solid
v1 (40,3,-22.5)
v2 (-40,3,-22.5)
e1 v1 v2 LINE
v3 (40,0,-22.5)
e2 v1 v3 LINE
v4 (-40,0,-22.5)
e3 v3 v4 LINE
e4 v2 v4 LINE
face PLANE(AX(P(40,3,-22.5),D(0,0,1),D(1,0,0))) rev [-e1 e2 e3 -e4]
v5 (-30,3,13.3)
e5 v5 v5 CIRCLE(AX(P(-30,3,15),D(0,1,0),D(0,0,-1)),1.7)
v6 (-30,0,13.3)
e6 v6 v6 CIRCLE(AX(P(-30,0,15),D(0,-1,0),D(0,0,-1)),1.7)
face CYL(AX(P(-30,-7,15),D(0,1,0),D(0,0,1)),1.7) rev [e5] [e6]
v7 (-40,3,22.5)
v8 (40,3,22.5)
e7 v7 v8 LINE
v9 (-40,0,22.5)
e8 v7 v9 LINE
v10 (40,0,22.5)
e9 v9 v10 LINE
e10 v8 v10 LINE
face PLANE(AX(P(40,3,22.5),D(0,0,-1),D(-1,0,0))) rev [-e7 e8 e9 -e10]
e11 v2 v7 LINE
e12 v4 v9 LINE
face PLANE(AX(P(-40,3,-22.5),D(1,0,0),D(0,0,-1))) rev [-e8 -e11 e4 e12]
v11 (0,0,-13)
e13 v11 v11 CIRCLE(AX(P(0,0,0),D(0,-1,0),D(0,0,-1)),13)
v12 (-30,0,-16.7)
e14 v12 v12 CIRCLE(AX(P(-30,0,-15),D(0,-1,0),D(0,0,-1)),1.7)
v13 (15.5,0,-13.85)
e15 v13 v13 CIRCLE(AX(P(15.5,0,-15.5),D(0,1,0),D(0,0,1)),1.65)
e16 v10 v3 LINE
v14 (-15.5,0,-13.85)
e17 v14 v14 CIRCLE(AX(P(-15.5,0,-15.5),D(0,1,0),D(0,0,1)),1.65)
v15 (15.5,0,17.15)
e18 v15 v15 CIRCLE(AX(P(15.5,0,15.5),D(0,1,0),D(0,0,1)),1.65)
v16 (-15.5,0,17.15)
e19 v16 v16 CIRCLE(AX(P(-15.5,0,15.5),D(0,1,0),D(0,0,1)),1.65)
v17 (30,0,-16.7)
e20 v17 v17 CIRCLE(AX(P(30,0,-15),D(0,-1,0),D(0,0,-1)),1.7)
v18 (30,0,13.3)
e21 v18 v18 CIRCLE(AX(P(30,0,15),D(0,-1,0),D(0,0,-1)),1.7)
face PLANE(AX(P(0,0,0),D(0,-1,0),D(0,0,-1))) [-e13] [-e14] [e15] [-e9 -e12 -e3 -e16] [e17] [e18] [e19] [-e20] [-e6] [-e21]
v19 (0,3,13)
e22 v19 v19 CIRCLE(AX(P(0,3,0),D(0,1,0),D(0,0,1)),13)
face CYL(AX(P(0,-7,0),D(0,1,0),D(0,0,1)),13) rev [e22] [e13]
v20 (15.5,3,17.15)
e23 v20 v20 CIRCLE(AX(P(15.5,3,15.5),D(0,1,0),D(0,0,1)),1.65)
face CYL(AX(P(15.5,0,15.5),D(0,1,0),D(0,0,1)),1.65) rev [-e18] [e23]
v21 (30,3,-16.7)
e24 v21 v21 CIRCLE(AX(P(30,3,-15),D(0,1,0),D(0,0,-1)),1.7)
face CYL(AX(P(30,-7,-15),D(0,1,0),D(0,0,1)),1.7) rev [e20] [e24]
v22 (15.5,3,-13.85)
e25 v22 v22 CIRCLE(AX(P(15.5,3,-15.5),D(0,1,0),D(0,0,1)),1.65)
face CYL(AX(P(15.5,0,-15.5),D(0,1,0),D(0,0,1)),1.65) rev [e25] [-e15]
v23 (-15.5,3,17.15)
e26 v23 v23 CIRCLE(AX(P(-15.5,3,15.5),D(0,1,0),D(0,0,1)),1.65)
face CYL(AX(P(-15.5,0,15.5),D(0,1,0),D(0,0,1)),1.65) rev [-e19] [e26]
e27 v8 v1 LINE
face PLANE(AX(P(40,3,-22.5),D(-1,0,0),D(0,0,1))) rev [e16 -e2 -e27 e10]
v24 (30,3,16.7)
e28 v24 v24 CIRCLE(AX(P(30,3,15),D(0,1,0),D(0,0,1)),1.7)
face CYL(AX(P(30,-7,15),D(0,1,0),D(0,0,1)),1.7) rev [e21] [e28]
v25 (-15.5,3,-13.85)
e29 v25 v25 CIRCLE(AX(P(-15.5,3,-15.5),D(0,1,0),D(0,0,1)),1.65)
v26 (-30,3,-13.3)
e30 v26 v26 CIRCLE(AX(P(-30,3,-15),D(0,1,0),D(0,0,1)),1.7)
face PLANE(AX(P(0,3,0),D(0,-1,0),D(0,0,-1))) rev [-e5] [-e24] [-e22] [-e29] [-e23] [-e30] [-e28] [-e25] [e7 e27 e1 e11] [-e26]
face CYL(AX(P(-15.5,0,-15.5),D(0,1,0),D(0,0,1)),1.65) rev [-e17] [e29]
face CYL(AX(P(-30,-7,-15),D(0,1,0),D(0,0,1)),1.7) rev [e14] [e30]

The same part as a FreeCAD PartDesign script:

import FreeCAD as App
import Part
import Sketcher
from FreeCAD import Vector

doc = App.newDocument("Part")
params = doc.addObject("Spreadsheet::Sheet", "Params")
for row, (alias, value) in enumerate([
    ("sketch1_width", "80 mm"),
    ("sketch1_height", "45 mm"),
    ("pad1_length", "3 mm"),
    ("sketch2_diameter", "3.3 mm"),
    ("pocket1_length", "3 mm"),
    ("sketch3_diameter", "26 mm"),
    ("pocket2_length", "10 mm"),
    ("sketch4_diameter", "3.4 mm"),
    ("pocket3_length", "10 mm"),
], start=1):
    params.set(f"A{row}", alias)
    params.set(f"B{row}", "=" + value)
    params.setAlias(f"B{row}", alias)

body = doc.addObject("PartDesign::Body", "Body")

# Sketch on XZ plane
sketch1 = body.newObject("Sketcher::SketchObject", "Sketch")
sketch1.AttachmentSupport = (doc.getObject("XZ_Plane"), [""])
sketch1.MapMode = "FlatFace"
sketch1.addGeometry(Part.LineSegment(Vector(-40, -22.5, 0), Vector(-40, 22.5, 0)), False)
sketch1.addGeometry(Part.LineSegment(Vector(-40, 22.5, 0), Vector(40, 22.5, 0)), False)
sketch1.addGeometry(Part.LineSegment(Vector(40, 22.5, 0), Vector(40, -22.5, 0)), False)
sketch1.addGeometry(Part.LineSegment(Vector(40, -22.5, 0), Vector(-40, -22.5, 0)), False)
sketch1.addConstraint(Sketcher.Constraint("Coincident", 0, 2, 1, 1))
sketch1.addConstraint(Sketcher.Constraint("Coincident", 1, 2, 2, 1))
sketch1.addConstraint(Sketcher.Constraint("Coincident", 2, 2, 3, 1))
sketch1.addConstraint(Sketcher.Constraint("Coincident", 3, 2, 0, 1))
sketch1.addConstraint(Sketcher.Constraint("Vertical", 0))
sketch1.addConstraint(Sketcher.Constraint("Horizontal", 1))
sketch1.addConstraint(Sketcher.Constraint("Vertical", 2))
sketch1.addConstraint(Sketcher.Constraint("Horizontal", 3))
sketch1.addConstraint(Sketcher.Constraint("Symmetric", 0, 2, 2, 2, -1, 1))
sketch1.addConstraint(Sketcher.Constraint("DistanceX", 1, 1, 1, 2, 80.0))
sketch1.addConstraint(Sketcher.Constraint("DistanceY", 0, 1, 0, 2, 45.0))
sketch1.setExpression("Constraints[9]", "Params.sketch1_width")
sketch1.setExpression("Constraints[10]", "Params.sketch1_height")
pad1 = body.newObject("PartDesign::Pad", "Pad")
pad1.Profile = sketch1
pad1.setExpression("Length", "Params.pad1_length")
pad1.Reversed = True

# Sketch on XZ plane
sketch2 = body.newObject("Sketcher::SketchObject", "Sketch001")
sketch2.AttachmentSupport = (doc.getObject("XZ_Plane"), [""])
sketch2.MapMode = "FlatFace"
sketch2.AttachmentOffset = App.Placement(Vector(0, 0, -3), App.Rotation())
sketch2.addGeometry(Part.Circle(Vector(-15.5, -15.5, 0), Vector(0, 0, 1), 1.65), False)
sketch2.addGeometry(Part.Circle(Vector(15.5, -15.5, 0), Vector(0, 0, 1), 1.65), False)
sketch2.addGeometry(Part.Circle(Vector(-15.5, 15.5, 0), Vector(0, 0, 1), 1.65), False)
sketch2.addGeometry(Part.Circle(Vector(15.5, 15.5, 0), Vector(0, 0, 1), 1.65), False)
sketch2.addConstraint(Sketcher.Constraint("Equal", 0, 1))
sketch2.addConstraint(Sketcher.Constraint("Equal", 1, 2))
sketch2.addConstraint(Sketcher.Constraint("Equal", 2, 3))
sketch2.addConstraint(Sketcher.Constraint("Symmetric", 1, 3, 2, 3, -1, 1))
sketch2.addConstraint(Sketcher.Constraint("Symmetric", 0, 3, 3, 3, -1, 1))
sketch2.addConstraint(Sketcher.Constraint("Symmetric", 0, 3, 1, 3, -2))
sketch2.addConstraint(Sketcher.Constraint("Diameter", 0, 3.3))
sketch2.addConstraint(Sketcher.Constraint("DistanceX", 0, 3, 1, 3, 31.0))
sketch2.addConstraint(Sketcher.Constraint("DistanceY", 0, 3, 2, 3, 31.0))
sketch2.setExpression("Constraints[6]", "Params.sketch2_diameter")
pocket1 = body.newObject("PartDesign::Pocket", "Pocket")
pocket1.Profile = sketch2
pocket1.setExpression("Length", "Params.pocket1_length")
pocket1.Reversed = True

# Sketch on XZ plane
sketch3 = body.newObject("Sketcher::SketchObject", "Sketch002")
sketch3.AttachmentSupport = (doc.getObject("XZ_Plane"), [""])
sketch3.MapMode = "FlatFace"
sketch3.AttachmentOffset = App.Placement(Vector(0, 0, -3), App.Rotation())
sketch3.addGeometry(Part.Circle(Vector(0, 0, 0), Vector(0, 0, 1), 13), False)
sketch3.addConstraint(Sketcher.Constraint("Coincident", 0, 3, -1, 1))
sketch3.addConstraint(Sketcher.Constraint("Diameter", 0, 26.0))
sketch3.setExpression("Constraints[1]", "Params.sketch3_diameter")
pocket2 = body.newObject("PartDesign::Pocket", "Pocket001")
pocket2.Profile = sketch3
pocket2.setExpression("Length", "Params.pocket2_length")
pocket2.Reversed = True

# Sketch on XZ plane
sketch4 = body.newObject("Sketcher::SketchObject", "Sketch003")
sketch4.AttachmentSupport = (doc.getObject("XZ_Plane"), [""])
sketch4.MapMode = "FlatFace"
sketch4.AttachmentOffset = App.Placement(Vector(0, 0, -3), App.Rotation())
sketch4.addGeometry(Part.Circle(Vector(-30, -15, 0), Vector(0, 0, 1), 1.7), False)
sketch4.addGeometry(Part.Circle(Vector(30, -15, 0), Vector(0, 0, 1), 1.7), False)
sketch4.addGeometry(Part.Circle(Vector(-30, 15, 0), Vector(0, 0, 1), 1.7), False)
sketch4.addGeometry(Part.Circle(Vector(30, 15, 0), Vector(0, 0, 1), 1.7), False)
sketch4.addConstraint(Sketcher.Constraint("Equal", 0, 1))
sketch4.addConstraint(Sketcher.Constraint("Equal", 1, 2))
sketch4.addConstraint(Sketcher.Constraint("Equal", 2, 3))
sketch4.addConstraint(Sketcher.Constraint("Symmetric", 1, 3, 2, 3, -1, 1))
sketch4.addConstraint(Sketcher.Constraint("Symmetric", 0, 3, 3, 3, -1, 1))
sketch4.addConstraint(Sketcher.Constraint("Symmetric", 0, 3, 1, 3, -2))
sketch4.addConstraint(Sketcher.Constraint("Diameter", 0, 3.4))
sketch4.addConstraint(Sketcher.Constraint("DistanceX", 0, 3, -1, 1, 30.0))
sketch4.addConstraint(Sketcher.Constraint("DistanceY", 0, 3, -1, 1, 15.0))
sketch4.setExpression("Constraints[6]", "Params.sketch4_diameter")
pocket3 = body.newObject("PartDesign::Pocket", "Pocket002")
pocket3.Profile = sketch4
pocket3.setExpression("Length", "Params.pocket3_length")
pocket3.Reversed = True

doc.recompute()
